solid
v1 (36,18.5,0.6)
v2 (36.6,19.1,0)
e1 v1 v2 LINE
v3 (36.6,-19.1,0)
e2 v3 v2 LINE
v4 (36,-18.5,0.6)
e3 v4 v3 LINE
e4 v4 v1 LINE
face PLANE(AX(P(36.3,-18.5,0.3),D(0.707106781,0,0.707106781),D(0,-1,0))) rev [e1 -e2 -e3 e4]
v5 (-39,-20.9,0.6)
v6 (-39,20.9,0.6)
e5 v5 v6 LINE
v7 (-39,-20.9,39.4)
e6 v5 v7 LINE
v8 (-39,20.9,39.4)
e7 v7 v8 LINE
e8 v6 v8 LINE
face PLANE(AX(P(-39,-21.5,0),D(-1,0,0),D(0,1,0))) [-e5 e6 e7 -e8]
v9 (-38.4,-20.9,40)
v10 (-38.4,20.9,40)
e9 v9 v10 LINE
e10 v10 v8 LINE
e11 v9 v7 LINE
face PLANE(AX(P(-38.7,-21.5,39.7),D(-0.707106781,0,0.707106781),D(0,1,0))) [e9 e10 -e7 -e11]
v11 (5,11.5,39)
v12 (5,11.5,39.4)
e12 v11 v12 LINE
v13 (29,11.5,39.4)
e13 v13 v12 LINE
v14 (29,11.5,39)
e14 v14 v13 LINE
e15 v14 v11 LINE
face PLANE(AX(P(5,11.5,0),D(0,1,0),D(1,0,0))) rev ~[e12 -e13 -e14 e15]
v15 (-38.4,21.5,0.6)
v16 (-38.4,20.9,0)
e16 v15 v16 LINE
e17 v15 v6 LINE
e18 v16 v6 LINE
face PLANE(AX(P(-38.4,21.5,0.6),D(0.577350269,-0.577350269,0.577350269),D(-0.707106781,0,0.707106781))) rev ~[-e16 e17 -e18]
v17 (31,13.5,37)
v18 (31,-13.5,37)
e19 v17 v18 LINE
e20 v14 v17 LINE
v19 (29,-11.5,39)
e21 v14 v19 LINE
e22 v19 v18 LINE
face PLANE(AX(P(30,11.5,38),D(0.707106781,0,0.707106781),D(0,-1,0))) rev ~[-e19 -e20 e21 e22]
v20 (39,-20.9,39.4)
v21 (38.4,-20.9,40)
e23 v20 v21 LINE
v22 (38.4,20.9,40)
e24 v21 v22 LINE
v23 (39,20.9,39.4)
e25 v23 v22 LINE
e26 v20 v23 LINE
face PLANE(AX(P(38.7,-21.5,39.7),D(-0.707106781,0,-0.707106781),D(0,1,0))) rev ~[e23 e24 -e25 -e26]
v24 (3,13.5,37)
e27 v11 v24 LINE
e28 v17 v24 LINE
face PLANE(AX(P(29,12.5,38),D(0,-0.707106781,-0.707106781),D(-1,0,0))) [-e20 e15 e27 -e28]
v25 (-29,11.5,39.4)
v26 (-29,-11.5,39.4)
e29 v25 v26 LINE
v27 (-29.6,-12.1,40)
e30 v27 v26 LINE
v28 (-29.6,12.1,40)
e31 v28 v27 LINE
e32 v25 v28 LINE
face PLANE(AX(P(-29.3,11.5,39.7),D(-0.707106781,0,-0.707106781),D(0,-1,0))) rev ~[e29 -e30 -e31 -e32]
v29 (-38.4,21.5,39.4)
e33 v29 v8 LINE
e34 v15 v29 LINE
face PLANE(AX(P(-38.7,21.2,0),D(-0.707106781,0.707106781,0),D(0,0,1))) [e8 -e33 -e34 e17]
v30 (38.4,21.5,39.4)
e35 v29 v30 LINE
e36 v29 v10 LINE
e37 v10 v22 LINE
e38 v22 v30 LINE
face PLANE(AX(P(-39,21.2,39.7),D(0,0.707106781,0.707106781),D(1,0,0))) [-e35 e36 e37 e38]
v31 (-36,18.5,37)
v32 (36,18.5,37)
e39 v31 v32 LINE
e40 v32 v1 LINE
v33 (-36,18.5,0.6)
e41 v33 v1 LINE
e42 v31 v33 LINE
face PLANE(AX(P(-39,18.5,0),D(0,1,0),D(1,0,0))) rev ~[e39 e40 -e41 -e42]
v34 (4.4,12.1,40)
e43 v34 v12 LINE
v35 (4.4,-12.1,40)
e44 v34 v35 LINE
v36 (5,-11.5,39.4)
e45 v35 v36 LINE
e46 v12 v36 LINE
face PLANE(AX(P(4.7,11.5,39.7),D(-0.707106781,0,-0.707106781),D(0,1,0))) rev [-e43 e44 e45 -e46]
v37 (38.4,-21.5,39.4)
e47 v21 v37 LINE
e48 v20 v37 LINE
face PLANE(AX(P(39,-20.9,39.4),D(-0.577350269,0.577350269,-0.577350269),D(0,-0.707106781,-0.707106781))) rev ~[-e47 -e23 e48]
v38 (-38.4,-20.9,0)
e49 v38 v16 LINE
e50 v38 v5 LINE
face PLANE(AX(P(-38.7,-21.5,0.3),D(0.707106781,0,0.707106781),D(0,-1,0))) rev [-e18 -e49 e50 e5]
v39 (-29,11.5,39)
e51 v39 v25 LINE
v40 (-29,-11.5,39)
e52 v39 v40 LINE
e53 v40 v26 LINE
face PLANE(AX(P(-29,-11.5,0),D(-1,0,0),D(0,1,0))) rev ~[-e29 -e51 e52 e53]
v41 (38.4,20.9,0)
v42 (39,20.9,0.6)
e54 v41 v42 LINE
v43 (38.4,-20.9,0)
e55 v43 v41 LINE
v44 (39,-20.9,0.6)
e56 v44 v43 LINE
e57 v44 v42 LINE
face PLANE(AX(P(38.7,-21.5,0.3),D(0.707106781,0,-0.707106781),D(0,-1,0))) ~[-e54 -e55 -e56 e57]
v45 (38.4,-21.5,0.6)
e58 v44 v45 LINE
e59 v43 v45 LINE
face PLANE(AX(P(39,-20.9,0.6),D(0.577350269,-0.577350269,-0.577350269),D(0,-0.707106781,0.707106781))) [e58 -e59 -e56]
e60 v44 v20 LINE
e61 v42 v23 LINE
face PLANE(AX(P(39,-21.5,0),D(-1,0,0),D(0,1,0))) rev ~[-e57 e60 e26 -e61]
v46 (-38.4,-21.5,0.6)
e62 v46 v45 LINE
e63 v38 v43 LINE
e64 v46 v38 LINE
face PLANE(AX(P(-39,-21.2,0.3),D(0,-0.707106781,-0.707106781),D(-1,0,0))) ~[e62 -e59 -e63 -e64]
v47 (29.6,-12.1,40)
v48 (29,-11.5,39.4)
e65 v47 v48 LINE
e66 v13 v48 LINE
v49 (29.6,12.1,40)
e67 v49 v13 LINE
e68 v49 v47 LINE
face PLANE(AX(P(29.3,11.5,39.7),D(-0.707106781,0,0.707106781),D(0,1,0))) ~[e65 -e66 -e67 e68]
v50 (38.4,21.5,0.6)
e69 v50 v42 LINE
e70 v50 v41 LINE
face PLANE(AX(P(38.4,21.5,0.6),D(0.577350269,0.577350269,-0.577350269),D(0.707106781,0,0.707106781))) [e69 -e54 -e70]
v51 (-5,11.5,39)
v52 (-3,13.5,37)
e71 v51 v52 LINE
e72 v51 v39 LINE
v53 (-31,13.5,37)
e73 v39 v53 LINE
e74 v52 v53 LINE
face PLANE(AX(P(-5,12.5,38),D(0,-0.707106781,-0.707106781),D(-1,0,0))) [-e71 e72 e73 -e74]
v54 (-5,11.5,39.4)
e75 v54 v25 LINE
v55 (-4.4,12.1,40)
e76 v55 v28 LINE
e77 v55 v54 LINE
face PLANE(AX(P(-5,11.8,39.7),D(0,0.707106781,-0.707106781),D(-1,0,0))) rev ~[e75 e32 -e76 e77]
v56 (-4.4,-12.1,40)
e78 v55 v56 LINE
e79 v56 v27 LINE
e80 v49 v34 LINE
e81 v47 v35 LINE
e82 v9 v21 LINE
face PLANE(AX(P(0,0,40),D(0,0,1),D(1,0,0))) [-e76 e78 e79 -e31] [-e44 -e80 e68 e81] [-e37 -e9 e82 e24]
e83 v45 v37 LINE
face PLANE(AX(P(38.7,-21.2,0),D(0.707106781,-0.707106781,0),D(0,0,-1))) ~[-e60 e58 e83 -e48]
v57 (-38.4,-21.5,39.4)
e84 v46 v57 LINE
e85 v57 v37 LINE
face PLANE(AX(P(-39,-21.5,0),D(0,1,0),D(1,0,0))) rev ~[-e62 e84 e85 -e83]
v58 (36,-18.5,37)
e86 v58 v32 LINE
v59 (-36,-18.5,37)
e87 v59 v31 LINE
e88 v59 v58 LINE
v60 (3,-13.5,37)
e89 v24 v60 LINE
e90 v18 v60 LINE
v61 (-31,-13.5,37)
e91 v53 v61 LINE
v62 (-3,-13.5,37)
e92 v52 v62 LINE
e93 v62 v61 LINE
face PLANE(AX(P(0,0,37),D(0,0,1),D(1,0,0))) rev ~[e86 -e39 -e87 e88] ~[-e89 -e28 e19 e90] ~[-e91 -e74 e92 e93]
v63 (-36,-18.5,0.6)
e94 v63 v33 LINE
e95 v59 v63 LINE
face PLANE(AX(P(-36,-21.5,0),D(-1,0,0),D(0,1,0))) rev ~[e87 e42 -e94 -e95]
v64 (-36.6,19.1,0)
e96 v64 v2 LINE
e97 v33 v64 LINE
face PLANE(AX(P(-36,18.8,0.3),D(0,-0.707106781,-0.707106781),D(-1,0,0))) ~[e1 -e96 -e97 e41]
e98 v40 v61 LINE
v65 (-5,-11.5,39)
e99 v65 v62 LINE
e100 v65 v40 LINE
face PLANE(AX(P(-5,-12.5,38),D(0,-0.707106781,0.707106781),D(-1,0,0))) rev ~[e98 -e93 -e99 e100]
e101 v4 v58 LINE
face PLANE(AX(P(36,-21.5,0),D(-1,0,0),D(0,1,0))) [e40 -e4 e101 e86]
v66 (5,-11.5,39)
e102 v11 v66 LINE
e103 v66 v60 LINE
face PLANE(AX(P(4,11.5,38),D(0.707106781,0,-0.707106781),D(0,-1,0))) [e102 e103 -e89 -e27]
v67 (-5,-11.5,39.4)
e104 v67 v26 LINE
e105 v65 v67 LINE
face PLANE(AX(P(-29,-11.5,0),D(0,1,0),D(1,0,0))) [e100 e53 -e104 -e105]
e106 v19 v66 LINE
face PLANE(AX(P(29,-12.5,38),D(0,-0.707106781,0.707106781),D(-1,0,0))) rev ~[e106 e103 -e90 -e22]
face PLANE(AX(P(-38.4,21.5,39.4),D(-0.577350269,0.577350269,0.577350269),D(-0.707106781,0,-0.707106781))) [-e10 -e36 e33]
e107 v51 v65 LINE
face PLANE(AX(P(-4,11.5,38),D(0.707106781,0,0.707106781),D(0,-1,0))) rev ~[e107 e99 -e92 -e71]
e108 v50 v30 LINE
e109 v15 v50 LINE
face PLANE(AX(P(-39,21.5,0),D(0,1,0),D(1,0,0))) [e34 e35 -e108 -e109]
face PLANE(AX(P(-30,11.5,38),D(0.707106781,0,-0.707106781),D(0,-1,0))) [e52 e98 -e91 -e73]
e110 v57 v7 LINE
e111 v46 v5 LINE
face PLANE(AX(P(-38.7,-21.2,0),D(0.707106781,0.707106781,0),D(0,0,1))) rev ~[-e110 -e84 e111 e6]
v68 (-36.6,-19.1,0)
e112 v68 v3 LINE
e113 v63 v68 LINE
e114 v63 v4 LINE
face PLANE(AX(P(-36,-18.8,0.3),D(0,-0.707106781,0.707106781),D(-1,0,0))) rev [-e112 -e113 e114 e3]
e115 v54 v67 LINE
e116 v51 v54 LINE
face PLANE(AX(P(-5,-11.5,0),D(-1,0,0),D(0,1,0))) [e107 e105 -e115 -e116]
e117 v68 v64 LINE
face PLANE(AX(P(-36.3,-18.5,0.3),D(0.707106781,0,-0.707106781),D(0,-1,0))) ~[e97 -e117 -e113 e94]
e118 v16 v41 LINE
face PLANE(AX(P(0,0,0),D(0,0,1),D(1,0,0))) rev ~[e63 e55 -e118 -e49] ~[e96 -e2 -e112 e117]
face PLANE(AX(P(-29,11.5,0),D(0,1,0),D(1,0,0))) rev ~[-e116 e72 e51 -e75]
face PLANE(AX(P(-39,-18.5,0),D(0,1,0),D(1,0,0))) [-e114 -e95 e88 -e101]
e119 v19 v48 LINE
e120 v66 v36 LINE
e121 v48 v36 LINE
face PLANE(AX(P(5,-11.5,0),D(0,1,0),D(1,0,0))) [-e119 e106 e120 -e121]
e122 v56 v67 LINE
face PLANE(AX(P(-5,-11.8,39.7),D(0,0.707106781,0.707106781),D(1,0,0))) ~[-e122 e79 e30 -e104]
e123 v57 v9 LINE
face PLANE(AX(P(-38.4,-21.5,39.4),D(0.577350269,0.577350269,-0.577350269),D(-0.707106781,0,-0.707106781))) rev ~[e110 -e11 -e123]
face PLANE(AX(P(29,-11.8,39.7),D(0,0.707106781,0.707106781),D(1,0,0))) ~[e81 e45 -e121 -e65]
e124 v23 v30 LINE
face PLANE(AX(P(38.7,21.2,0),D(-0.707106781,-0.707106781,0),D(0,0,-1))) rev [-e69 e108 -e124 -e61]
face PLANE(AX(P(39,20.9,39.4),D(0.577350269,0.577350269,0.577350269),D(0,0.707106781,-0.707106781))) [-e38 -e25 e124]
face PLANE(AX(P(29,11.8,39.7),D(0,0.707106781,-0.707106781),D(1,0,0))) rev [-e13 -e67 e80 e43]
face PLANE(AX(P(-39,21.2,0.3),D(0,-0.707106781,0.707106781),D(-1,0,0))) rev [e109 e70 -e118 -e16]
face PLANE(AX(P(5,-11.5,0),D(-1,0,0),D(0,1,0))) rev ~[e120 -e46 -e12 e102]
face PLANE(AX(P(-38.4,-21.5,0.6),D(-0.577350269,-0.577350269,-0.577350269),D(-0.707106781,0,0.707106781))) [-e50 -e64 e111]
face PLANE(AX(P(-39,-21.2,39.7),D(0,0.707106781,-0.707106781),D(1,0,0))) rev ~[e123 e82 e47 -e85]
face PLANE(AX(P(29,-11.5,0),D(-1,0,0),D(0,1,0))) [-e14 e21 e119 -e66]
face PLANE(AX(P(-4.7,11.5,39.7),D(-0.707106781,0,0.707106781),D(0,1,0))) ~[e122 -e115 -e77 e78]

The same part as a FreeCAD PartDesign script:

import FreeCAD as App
import Part
import Sketcher

V = App.Vector


def edges_at(feature, points):
    """Names of the edges that pass closest to the given points."""
    edges = feature.Shape.Edges
    near = lambda p: min(range(len(edges)), key=lambda i: edges[i].distToShape(Part.Vertex(*p))[0])
    return sorted({f"Edge{near(p) + 1}" for p in points})


def faces_at(feature, points):
    """Names of the faces that lie closest to the given points."""
    faces = feature.Shape.Faces
    near = lambda p: min(range(len(faces)), key=lambda i: faces[i].distToShape(Part.Vertex(*p))[0])
    return sorted({f"Face{near(p) + 1}" for p in points})

doc = App.newDocument("Part")
params = doc.addObject("Spreadsheet::Sheet", "Params")
for row, (alias, value) in enumerate([
    ("sketch1_width", "78 mm"),
    ("sketch1_height", "43 mm"),
    ("pad1_length", "40 mm"),
    ("thickness_wall", "3 mm"),
    ("sketch2_width", "24 mm"),
    ("sketch2_height", "23 mm"),
    ("chamfer_size", "2 mm"),
    ("chamfer2_size", "0.6 mm"),
], start=1):
    params.set(f"A{row}", alias)
    params.set(f"B{row}", "=" + value)
    params.setAlias(f"B{row}", alias)

body = doc.addObject("PartDesign::Body", "Body")

# Sketch on XY plane
sketch1 = body.newObject("Sketcher::SketchObject", "Sketch")
sketch1.AttachmentSupport = (doc.getObject("XY_Plane"), [""])
sketch1.MapMode = "FlatFace"
sketch1.addGeometry(Part.LineSegment(V(-39, 21.5, 0), V(-39, -21.5, 0)), False)
sketch1.addGeometry(Part.LineSegment(V(-39, -21.5, 0), V(39, -21.5, 0)), False)
sketch1.addGeometry(Part.LineSegment(V(39, -21.5, 0), V(39, 21.5, 0)), False)
sketch1.addGeometry(Part.LineSegment(V(39, 21.5, 0), V(-39, 21.5, 0)), False)
sketch1.addConstraint(Sketcher.Constraint("Coincident", 0, 2, 1, 1))
sketch1.addConstraint(Sketcher.Constraint("Coincident", 1, 2, 2, 1))
sketch1.addConstraint(Sketcher.Constraint("Coincident", 2, 2, 3, 1))
sketch1.addConstraint(Sketcher.Constraint("Coincident", 3, 2, 0, 1))
sketch1.addConstraint(Sketcher.Constraint("Vertical", 0))
sketch1.addConstraint(Sketcher.Constraint("Horizontal", 1))
sketch1.addConstraint(Sketcher.Constraint("Vertical", 2))
sketch1.addConstraint(Sketcher.Constraint("Horizontal", 3))
sketch1.addConstraint(Sketcher.Constraint("Symmetric", 0, 2, 2, 2, -1, 1))
sketch1.addConstraint(Sketcher.Constraint("DistanceX", 1, 1, 1, 2, 78.0))
sketch1.addConstraint(Sketcher.Constraint("DistanceY", 0, 2, 0, 1, 43.0))
sketch1.setExpression("Constraints[9]", "Params.sketch1_width")
sketch1.setExpression("Constraints[10]", "Params.sketch1_height")
pad1 = body.newObject("PartDesign::Pad", "Pad")
pad1.Profile = sketch1
pad1.setExpression("Length", "Params.pad1_length")
doc.recompute()

thickness = body.newObject("PartDesign::Thickness", "Thickness")
thickness.Base = (pad1, faces_at(pad1, [(0, 0, 0)]))
thickness.setExpression("Value", "Params.thickness_wall")
thickness.Reversed = True
thickness.Join = "Arc"

# Sketch on XY plane
sketch2 = body.newObject("Sketcher::SketchObject", "Sketch001")
sketch2.AttachmentSupport = (doc.getObject("XY_Plane"), [""])
sketch2.MapMode = "FlatFace"
sketch2.addGeometry(Part.LineSegment(V(-29, 11.5, 0), V(-29, -11.5, 0)), False)
sketch2.addGeometry(Part.LineSegment(V(-29, -11.5, 0), V(-5, -11.5, 0)), False)
sketch2.addGeometry(Part.LineSegment(V(-5, -11.5, 0), V(-5, 11.5, 0)), False)
sketch2.addGeometry(Part.LineSegment(V(-5, 11.5, 0), V(-29, 11.5, 0)), False)
sketch2.addGeometry(Part.LineSegment(V(5, 11.5, 0), V(5, -11.5, 0)), False)
sketch2.addGeometry(Part.LineSegment(V(5, -11.5, 0), V(29, -11.5, 0)), False)
sketch2.addGeometry(Part.LineSegment(V(29, -11.5, 0), V(29, 11.5, 0)), False)
sketch2.addGeometry(Part.LineSegment(V(29, 11.5, 0), V(5, 11.5, 0)), False)
sketch2.addConstraint(Sketcher.Constraint("Coincident", 0, 2, 1, 1))
sketch2.addConstraint(Sketcher.Constraint("Coincident", 1, 2, 2, 1))
sketch2.addConstraint(Sketcher.Constraint("Coincident", 2, 2, 3, 1))
sketch2.addConstraint(Sketcher.Constraint("Coincident", 3, 2, 0, 1))
sketch2.addConstraint(Sketcher.Constraint("Coincident", 4, 2, 5, 1))
sketch2.addConstraint(Sketcher.Constraint("Coincident", 5, 2, 6, 1))
sketch2.addConstraint(Sketcher.Constraint("Coincident", 6, 2, 7, 1))
sketch2.addConstraint(Sketcher.Constraint("Coincident", 7, 2, 4, 1))
sketch2.addConstraint(Sketcher.Constraint("Vertical", 0))
sketch2.addConstraint(Sketcher.Constraint("Horizontal", 1))
sketch2.addConstraint(Sketcher.Constraint("Vertical", 2))
sketch2.addConstraint(Sketcher.Constraint("Horizontal", 3))
sketch2.addConstraint(Sketcher.Constraint("Vertical", 4))
sketch2.addConstraint(Sketcher.Constraint("Horizontal", 5))
sketch2.addConstraint(Sketcher.Constraint("Vertical", 6))
sketch2.addConstraint(Sketcher.Constraint("Horizontal", 7))
sketch2.addConstraint(Sketcher.Constraint("Symmetric", 2, 2, 4, 2, -1, 1))
sketch2.addConstraint(Sketcher.Constraint("Symmetric", 0, 2, 6, 2, -1, 1))
sketch2.addConstraint(Sketcher.Constraint("Horizontal", 1, 2, 4, 2))
sketch2.addConstraint(Sketcher.Constraint("DistanceX", 1, 1, 1, 2, 24.0))
sketch2.addConstraint(Sketcher.Constraint("DistanceY", 0, 2, 0, 1, 23.0))
sketch2.addConstraint(Sketcher.Constraint("DistanceX", 0, 2, -1, 1, 29.0))
sketch2.setExpression("Constraints[19]", "Params.sketch2_width")
sketch2.setExpression("Constraints[20]", "Params.sketch2_height")
pocket1 = body.newObject("PartDesign::Pocket", "Pocket")
pocket1.Profile = sketch2
pocket1.Type = "ThroughAll"
pocket1.Reversed = True
doc.recompute()

chamfer = body.newObject("PartDesign::Chamfer", "Chamfer")
chamfer.Base = (pocket1, edges_at(pocket1, [
    (-5, 0, 37),
    (-17, -11.5, 37),
    (-29, 0, 37),
    (17, -11.5, 37),
    (5, 0, 37),
    (29, 0, 37),
    (-17, 11.5, 37),
    (17, 11.5, 37),
]))
chamfer.setExpression("Size", "Params.chamfer_size")
doc.recompute()

chamfer2 = body.newObject("PartDesign::Chamfer", "Chamfer001")
chamfer2.Base = (chamfer, edges_at(chamfer, [
    (-39, 0, 0),
    (0, -21.5, 0),
    (39, 0, 0),
    (0, 21.5, 0),
    (-36, 0, 0),
    (0, 18.5, 0),
    (36, 0, 0),
    (0, -18.5, 0),
    (-39, 0, 40),
    (0, 21.5, 40),
    (0, -21.5, 40),
    (39, 0, 40),
    (17, -11.5, 40),
    (29, 0, 40),
    (17, 11.5, 40),
    (5, 0, 40),
    (-17, -11.5, 40),
    (-5, 0, 40),
    (-17, 11.5, 40),
    (-29, 0, 40),
    (39, 21.5, 20),
    (-39, 21.5, 20),
    (-39, -21.5, 20),
    (39, -21.5, 20),
]))
chamfer2.setExpression("Size", "Params.chamfer2_size")

doc.recompute()
